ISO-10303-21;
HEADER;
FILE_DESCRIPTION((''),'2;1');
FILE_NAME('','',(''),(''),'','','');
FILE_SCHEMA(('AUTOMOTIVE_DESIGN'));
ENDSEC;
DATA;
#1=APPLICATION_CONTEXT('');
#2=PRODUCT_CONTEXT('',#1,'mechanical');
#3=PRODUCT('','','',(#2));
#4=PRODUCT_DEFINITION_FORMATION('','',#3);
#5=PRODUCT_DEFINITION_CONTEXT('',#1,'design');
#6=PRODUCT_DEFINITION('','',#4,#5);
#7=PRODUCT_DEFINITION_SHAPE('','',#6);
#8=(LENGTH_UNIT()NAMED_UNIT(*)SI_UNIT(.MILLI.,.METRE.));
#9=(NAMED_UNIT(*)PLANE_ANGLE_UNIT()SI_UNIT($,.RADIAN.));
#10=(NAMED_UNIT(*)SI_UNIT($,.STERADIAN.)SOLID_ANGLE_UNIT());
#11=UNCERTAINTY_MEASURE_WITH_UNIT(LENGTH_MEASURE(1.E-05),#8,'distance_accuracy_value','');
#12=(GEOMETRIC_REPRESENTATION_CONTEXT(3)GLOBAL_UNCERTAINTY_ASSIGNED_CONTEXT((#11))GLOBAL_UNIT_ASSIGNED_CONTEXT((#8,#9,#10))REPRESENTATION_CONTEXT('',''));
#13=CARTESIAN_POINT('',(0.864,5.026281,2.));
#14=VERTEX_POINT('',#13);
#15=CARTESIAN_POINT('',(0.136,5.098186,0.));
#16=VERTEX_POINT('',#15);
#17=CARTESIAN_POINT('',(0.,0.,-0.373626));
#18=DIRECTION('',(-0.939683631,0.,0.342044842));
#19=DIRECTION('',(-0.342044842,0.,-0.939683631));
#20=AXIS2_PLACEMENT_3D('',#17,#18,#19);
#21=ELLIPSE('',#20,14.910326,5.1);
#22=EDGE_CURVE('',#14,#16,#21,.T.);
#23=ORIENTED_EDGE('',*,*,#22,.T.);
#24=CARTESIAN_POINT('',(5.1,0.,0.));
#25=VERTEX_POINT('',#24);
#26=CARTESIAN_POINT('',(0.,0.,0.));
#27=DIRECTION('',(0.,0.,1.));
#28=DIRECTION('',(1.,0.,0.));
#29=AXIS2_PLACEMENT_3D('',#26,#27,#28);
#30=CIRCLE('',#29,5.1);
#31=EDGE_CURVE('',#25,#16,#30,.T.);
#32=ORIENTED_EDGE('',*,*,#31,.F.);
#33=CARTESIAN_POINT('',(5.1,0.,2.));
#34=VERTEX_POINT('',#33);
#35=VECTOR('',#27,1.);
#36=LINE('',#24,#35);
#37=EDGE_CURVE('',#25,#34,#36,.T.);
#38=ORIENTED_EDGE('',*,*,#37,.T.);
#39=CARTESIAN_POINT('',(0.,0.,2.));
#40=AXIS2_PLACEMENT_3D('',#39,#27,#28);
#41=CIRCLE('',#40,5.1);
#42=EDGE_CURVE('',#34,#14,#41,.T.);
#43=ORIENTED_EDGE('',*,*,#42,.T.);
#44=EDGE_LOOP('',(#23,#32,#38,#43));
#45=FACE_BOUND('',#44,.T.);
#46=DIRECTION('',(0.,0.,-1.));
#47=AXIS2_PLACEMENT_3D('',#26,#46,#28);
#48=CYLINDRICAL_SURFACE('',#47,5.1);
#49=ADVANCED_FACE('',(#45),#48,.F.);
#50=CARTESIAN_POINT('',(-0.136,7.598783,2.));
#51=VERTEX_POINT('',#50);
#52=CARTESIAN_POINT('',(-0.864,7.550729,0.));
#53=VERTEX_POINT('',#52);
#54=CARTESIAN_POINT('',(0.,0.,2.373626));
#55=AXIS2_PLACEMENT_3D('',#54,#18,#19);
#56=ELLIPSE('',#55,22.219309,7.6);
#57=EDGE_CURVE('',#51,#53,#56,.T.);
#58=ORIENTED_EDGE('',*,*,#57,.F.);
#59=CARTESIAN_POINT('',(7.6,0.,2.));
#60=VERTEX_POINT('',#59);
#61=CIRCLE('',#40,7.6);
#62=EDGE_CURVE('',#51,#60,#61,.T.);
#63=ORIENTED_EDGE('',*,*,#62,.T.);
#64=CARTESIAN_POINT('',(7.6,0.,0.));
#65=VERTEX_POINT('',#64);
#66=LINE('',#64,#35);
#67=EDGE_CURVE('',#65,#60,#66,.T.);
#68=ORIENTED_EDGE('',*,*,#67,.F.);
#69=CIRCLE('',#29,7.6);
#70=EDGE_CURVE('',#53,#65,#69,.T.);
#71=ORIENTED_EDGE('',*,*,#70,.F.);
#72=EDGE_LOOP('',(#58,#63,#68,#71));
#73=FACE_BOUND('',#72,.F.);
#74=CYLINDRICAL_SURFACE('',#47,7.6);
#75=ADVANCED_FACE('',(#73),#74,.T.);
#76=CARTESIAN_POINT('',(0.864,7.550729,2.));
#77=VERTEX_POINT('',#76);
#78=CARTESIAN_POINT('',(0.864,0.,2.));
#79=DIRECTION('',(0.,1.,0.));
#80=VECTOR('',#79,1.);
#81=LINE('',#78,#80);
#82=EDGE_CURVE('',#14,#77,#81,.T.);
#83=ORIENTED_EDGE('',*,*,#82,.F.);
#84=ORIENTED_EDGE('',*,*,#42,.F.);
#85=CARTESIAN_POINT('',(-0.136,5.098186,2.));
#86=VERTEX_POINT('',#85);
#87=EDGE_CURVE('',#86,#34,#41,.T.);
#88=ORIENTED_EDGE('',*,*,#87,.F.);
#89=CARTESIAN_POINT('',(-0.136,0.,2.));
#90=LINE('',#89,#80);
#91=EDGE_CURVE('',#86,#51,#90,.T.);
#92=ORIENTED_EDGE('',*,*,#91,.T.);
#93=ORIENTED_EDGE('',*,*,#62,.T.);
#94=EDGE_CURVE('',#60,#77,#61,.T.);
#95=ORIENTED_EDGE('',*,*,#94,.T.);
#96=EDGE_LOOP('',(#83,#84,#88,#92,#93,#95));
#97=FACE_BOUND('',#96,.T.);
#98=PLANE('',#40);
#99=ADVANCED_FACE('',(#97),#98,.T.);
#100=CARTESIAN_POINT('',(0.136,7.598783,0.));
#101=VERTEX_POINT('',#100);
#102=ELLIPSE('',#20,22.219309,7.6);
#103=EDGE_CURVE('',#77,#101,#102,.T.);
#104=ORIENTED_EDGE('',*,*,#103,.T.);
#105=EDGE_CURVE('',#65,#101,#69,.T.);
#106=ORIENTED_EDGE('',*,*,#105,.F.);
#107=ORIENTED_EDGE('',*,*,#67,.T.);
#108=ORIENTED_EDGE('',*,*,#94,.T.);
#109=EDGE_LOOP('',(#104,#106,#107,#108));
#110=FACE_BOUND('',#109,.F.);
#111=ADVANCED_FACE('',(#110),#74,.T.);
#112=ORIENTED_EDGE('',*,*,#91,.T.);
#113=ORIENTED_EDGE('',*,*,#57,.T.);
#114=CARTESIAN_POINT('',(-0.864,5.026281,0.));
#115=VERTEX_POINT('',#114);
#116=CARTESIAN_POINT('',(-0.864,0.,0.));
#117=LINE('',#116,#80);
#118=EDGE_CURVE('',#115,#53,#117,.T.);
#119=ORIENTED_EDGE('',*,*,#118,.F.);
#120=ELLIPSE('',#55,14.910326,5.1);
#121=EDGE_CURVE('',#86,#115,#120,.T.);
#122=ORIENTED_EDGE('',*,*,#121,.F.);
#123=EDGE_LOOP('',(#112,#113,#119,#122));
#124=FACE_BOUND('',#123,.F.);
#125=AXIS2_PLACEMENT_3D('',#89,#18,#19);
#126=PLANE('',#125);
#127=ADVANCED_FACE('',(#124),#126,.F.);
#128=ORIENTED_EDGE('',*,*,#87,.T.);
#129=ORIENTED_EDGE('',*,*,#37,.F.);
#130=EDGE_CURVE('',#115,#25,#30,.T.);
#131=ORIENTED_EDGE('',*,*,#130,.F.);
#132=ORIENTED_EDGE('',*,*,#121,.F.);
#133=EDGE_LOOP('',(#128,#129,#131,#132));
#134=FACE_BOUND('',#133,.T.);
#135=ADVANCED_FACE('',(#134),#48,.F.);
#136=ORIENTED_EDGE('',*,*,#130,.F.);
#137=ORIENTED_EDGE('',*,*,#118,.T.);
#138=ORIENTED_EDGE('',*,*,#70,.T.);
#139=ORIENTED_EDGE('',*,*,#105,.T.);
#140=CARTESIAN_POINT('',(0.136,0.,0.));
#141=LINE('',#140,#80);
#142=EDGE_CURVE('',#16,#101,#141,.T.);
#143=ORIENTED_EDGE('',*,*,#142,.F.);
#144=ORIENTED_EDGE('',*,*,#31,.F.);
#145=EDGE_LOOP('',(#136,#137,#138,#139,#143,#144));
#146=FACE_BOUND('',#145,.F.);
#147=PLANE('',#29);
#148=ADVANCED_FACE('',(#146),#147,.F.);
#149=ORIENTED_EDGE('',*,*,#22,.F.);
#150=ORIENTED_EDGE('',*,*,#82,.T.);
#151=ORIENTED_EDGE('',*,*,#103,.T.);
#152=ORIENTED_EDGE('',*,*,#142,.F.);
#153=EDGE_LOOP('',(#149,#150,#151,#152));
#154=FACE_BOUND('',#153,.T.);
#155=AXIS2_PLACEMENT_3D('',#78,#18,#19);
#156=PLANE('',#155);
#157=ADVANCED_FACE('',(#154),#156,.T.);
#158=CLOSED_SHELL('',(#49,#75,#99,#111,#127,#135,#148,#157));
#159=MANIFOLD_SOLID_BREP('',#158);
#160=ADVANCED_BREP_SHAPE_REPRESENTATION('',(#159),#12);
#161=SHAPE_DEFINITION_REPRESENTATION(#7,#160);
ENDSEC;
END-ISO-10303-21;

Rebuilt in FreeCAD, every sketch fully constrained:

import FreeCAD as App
import Part
import Sketcher

doc = App.newDocument("Part")
params = doc.addObject("Spreadsheet::Sheet", "Params")
for row, (alias, value) in enumerate([
    ("sketch1_diameter", "15.2 mm"),
    ("sketch1_diameter2", "10.2 mm"),
    ("pad1_length", "2 mm"),
    ("sketch2_width", "1 mm"),
], start=1):
    params.set(f"A{row}", alias)
    params.set(f"B{row}", "=" + value)
    params.setAlias(f"B{row}", alias)

body = doc.addObject("PartDesign::Body", "Body")

sketch1 = body.newObject("Sketcher::SketchObject", "Sketch")
sketch1.AttachmentSupport = (doc.getObject("XY_Plane"), [""])
sketch1.MapMode = "FlatFace"
sketch1.addGeometry(Part.Circle(App.Vector(0, 0, 0), App.Vector(0, 0, 1), 8), False)
sketch1.addGeometry(Part.Circle(App.Vector(0, 0, 0), App.Vector(0, 0, 1), 5), False)
sketch1.addConstraint(Sketcher.Constraint("Coincident", 0, 3, -1, 1))
sketch1.addConstraint(Sketcher.Constraint("Coincident", 1, 3, -1, 1))
sketch1.addConstraint(Sketcher.Constraint("Diameter", 0, 15.2))
sketch1.addConstraint(Sketcher.Constraint("Diameter", 1, 10.2))
sketch1.setExpression("Constraints[2]", "Params.sketch1_diameter")
sketch1.setExpression("Constraints[3]", "Params.sketch1_diameter2")
pad1 = body.newObject("PartDesign::Pad", "Pad")
pad1.Profile = sketch1
pad1.setExpression("Length", "Params.pad1_length")

sketch2 = body.newObject("Sketcher::SketchObject", "Sketch001")
sketch2.AttachmentSupport = (doc.getObject("XZ_Plane"), [""])
sketch2.MapMode = "FlatFace"
sketch2.addGeometry(Part.LineSegment(App.Vector(-0.1, 2, 0), App.Vector(0.9, 2, 0)), False)
sketch2.addGeometry(Part.LineSegment(App.Vector(0.9, 2, 0), App.Vector(0.1, 0, 0)), False)
sketch2.addGeometry(Part.LineSegment(App.Vector(0.1, 0, 0), App.Vector(-0.9, 0, 0)), False)
sketch2.addGeometry(Part.LineSegment(App.Vector(-0.9, 0, 0), App.Vector(-0.1, 2, 0)), False)
sketch2.addConstraint(Sketcher.Constraint("Coincident", 0, 2, 1, 1))
sketch2.addConstraint(Sketcher.Constraint("Coincident", 1, 2, 2, 1))
sketch2.addConstraint(Sketcher.Constraint("Coincident", 2, 2, 3, 1))
sketch2.addConstraint(Sketcher.Constraint("Coincident", 3, 2, 0, 1))
sketch2.addConstraint(Sketcher.Constraint("Horizontal", 0))
sketch2.addConstraint(Sketcher.Constraint("Horizontal", 2))
sketch2.addConstraint(Sketcher.Constraint("PointOnObject", 1, 2, -1))
sketch2.addConstraint(Sketcher.Constraint("Parallel", 1, 3))
sketch2.addConstraint(Sketcher.Constraint("DistanceX", 0, 1, 0, 2, 1.0))
sketch2.addConstraint(Sketcher.Constraint("DistanceY", -1, 1, 0, 2, 2.0))
sketch2.addConstraint(Sketcher.Constraint("DistanceX", -1, 1, 0, 2, 0.864))
sketch2.addConstraint(Sketcher.Constraint("DistanceX", -1, 1, 1, 2, 0.136))
sketch2.setExpression("Constraints[8]", "Params.sketch2_width")
pocket1 = body.newObject("PartDesign::Pocket", "Pocket")
pocket1.Profile = sketch2
pocket1.Type = "ThroughAll"

doc.recompute()
